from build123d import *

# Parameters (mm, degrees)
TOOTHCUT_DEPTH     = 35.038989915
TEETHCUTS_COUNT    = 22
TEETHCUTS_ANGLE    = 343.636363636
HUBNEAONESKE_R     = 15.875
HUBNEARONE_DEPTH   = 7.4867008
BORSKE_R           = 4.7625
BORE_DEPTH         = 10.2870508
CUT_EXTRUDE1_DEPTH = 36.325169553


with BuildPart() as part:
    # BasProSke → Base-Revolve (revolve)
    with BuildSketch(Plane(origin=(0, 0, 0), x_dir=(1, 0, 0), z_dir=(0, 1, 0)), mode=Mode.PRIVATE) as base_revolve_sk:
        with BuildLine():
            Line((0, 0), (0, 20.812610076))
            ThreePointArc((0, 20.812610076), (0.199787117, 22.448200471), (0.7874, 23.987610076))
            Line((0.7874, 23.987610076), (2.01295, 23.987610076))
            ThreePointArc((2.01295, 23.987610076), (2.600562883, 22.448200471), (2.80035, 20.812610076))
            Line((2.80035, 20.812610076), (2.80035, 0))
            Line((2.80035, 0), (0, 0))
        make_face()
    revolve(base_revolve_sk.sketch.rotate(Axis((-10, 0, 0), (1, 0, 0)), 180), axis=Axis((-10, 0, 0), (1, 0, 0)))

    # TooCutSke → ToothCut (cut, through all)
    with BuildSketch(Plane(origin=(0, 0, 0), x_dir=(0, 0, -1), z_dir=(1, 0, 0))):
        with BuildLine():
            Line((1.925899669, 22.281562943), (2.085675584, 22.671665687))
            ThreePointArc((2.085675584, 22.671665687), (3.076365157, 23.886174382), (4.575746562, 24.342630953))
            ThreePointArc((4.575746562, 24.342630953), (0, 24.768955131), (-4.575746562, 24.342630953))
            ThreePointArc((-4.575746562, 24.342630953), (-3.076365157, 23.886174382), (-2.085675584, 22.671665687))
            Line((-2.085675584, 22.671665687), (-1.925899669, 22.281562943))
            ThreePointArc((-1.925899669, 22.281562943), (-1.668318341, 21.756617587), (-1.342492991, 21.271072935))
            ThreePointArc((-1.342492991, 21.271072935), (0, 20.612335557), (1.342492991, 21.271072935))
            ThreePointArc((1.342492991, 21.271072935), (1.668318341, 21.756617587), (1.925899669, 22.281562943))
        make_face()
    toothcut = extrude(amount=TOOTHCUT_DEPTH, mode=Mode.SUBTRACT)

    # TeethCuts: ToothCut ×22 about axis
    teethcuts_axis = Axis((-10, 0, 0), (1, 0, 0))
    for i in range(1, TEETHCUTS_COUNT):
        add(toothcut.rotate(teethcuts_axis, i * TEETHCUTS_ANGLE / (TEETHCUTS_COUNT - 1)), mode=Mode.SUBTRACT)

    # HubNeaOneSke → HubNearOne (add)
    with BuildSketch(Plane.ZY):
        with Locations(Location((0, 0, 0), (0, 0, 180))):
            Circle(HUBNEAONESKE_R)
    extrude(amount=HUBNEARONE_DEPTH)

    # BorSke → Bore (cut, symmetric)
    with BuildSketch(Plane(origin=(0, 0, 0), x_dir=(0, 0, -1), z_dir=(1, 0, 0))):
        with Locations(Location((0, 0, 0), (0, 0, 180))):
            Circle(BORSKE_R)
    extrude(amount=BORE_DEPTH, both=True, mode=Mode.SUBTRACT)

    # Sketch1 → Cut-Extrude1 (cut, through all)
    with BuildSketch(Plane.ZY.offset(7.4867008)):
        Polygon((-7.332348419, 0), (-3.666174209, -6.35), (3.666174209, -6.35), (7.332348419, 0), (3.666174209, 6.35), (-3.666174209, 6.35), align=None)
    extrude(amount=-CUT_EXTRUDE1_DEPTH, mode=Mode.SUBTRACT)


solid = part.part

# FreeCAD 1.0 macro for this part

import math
import FreeCAD as App
import Part
import Sketcher
Q = App.Units.Quantity


def add_polygon(sketch, points):
    """Adds a closed chain of lines whose ends are joined by coincident constraints."""
    first, n = sketch.GeometryCount, len(points)
    for a, b in zip(points, points[1:] + points[:1]):
        sketch.addGeometry(Part.LineSegment(App.Vector(*a, 0), App.Vector(*b, 0)), False)
    for i in range(n):
        sketch.addConstraint(Sketcher.Constraint("Coincident", first + i, 2, first + (i + 1) % n, 1))

doc = App.newDocument("Part")
body = doc.addObject("PartDesign::Body", "Body")

# Sketch on XZ plane
sketch1 = body.newObject("Sketcher::SketchObject", "Sketch")
sketch1.AttachmentSupport = (doc.getObject("XZ_Plane"), [""])
sketch1.MapMode = "FlatFace"
sketch1.addGeometry([
    Part.LineSegment(App.Vector(0, -20.8, 0), App.Vector(0, 0, 0)),  # 0
    Part.LineSegment(App.Vector(0, 0, 0), App.Vector(2.8, 0, 0)),  # 1
    Part.LineSegment(App.Vector(2.8, 0, 0), App.Vector(2.8, -20.8, 0)),  # 2
    Part.ArcOfCircle(Part.Circle(App.Vector(-4, -20.8, 0), App.Vector(0, 0, 1), 6.8), math.radians(-28), math.radians(0)),  # 3
    Part.LineSegment(App.Vector(2, -24, 0), App.Vector(0.8, -24, 0)),  # 4
    Part.ArcOfCircle(Part.Circle(App.Vector(6.8, -20.8, 0), App.Vector(0, 0, 1), 6.8), math.radians(180), math.radians(208)),  # 5
], False)
sketch1.addConstraint([
    Sketcher.Constraint("Coincident", 0, 2, 1, 1),
    Sketcher.Constraint("Coincident", 1, 2, 2, 1),
    Sketcher.Constraint("Tangent", 2, 2, 3, 2),
    Sketcher.Constraint("Coincident", 3, 1, 4, 1),
    Sketcher.Constraint("Coincident", 4, 2, 5, 2),
    Sketcher.Constraint("Tangent", 5, 1, 0, 1),
    Sketcher.Constraint("Vertical", 0),
    Sketcher.Constraint("Horizontal", 1),
    Sketcher.Constraint("Vertical", 2),
    Sketcher.Constraint("Horizontal", 4),
    Sketcher.Constraint("Coincident", 0, 2, -1, 1),
    Sketcher.Constraint("Equal", 3, 5),
    Sketcher.Constraint("Horizontal", 3, 3, 5, 3),
    Sketcher.Constraint("DistanceX", -1, 1, 4, 2, Q("0.031 in")),
    Sketcher.Constraint("Radius", 3, 6.79491),
    Sketcher.Constraint("DistanceX", 1, 1, 1, 2, 2.80035),
    Sketcher.Constraint("DistanceY", 0, 1, 0, 2, 20.81261),
])
revolution = body.newObject("PartDesign::Revolution", "Revolution")
revolution.Profile = sketch1
revolution.ReferenceAxis = (sketch1, ["H_Axis"])
revolution.Angle = 360

# Sketch on YZ plane
sketch2 = body.newObject("Sketcher::SketchObject", "Sketch001")
sketch2.AttachmentSupport = (doc.getObject("YZ_Plane"), [""])
sketch2.MapMode = "FlatFace"
sketch2.addGeometry([
    Part.LineSegment(App.Vector(22.28, -1.93, 0), App.Vector(22.67, -2.09, 0)),  # 0
    Part.ArcOfCircle(Part.Circle(App.Vector(21.65, -4.58, 0), App.Vector(0, 0, 1), 2.69), math.radians(0), math.radians(68)),  # 1
    Part.ArcOfCircle(Part.Circle(App.Vector(0, 0, 0), App.Vector(0, 0, 1), 24.77), math.radians(-11), math.radians(11)),  # 2
    Part.ArcOfCircle(Part.Circle(App.Vector(21.65, 4.58, 0), App.Vector(0, 0, 1), 2.69), math.radians(-68), math.radians(0)),  # 3
    Part.LineSegment(App.Vector(22.67, 2.09, 0), App.Vector(22.28, 1.93, 0)),  # 4
    Part.ArcOfCircle(Part.Circle(App.Vector(23.93, -2.09, 0), App.Vector(0, 0, 1), 4.34), math.radians(112.27), math.radians(127.73)),  # 5
    Part.ArcOfCircle(Part.Circle(App.Vector(22.31, 0, 0), App.Vector(0, 0, 1), 1.7), math.radians(128), math.radians(232)),  # 6
    Part.ArcOfCircle(Part.Circle(App.Vector(23.93, 2.09, 0), App.Vector(0, 0, 1), 4.34), math.radians(-127.73), math.radians(-112.27)),  # 7
], False)
sketch2.addConstraint([
    Sketcher.Constraint("Tangent", 0, 2, 1, 2),
    Sketcher.Constraint("Coincident", 1, 1, 2, 1),
    Sketcher.Constraint("Coincident", 2, 2, 3, 2),
    Sketcher.Constraint("Tangent", 3, 1, 4, 1),
    Sketcher.Constraint("Tangent", 4, 2, 5, 1),
    Sketcher.Constraint("Tangent", 5, 2, 6, 1),
    Sketcher.Constraint("Tangent", 6, 2, 7, 1),
    Sketcher.Constraint("Tangent", 7, 2, 0, 1),
    Sketcher.Constraint("Coincident", 2, 3, -1, 1),
    Sketcher.Constraint("Equal", 1, 3),
    Sketcher.Constraint("Equal", 5, 7),
    Sketcher.Constraint("Symmetric", 1, 3, 3, 3, -1),
    Sketcher.Constraint("Symmetric", 5, 3, 7, 3, -1),
    Sketcher.Constraint("Horizontal", 3, 3, 2, 2),
    Sketcher.Constraint("Radius", 1, 2.690833),
    Sketcher.Constraint("Radius", 2, 24.768955),
    Sketcher.Constraint("Radius", 5, 4.338955),
    Sketcher.Constraint("Radius", 6, 1.697355),
    Sketcher.Constraint("DistanceY", -1, 1, 4, 2, 1.9259),
    Sketcher.Constraint("DistanceX", -1, 1, 6, 3, 22.309691),
    Sketcher.Constraint("DistanceX", -1, 1, 1, 1, 24.342631),
])
pocket1 = body.newObject("PartDesign::Pocket", "Pocket")
pocket1.Profile = sketch2
pocket1.Type = "ThroughAll"
pocket1.Reversed = True
doc.recompute()

polarpattern = body.newObject("PartDesign::PolarPattern", "PolarPattern")
polarpattern.Originals = [pocket1]
polarpattern.Axis = (doc.getObject("X_Axis"), [""])
polarpattern.Angle = 360
polarpattern.Occurrences = 22
body.Tip = polarpattern

# Sketch on YZ plane
sketch3 = body.newObject("Sketcher::SketchObject", "Sketch002")
sketch3.AttachmentSupport = (doc.getObject("YZ_Plane"), [""])
sketch3.MapMode = "FlatFace"
sketch3.addGeometry(Part.Circle(App.Vector(0, 0, 0), App.Vector(0, 0, 1), 16), False)
sketch3.addConstraint([
    Sketcher.Constraint("Coincident", 0, 3, -1, 1),
    Sketcher.Constraint("Diameter", 0, Q("1.25 in")),
])
pad1 = body.newObject("PartDesign::Pad", "Pad")
pad1.Profile = sketch3
pad1.Length = 7.486701
pad1.Reversed = True

# Sketch on YZ plane
sketch4 = body.newObject("Sketcher::SketchObject", "Sketch003")
sketch4.AttachmentSupport = (doc.getObject("YZ_Plane"), [""])
sketch4.MapMode = "FlatFace"
sketch4.addGeometry(Part.Circle(App.Vector(0, 0, 0), App.Vector(0, 0, 1), 4.8), False)
sketch4.addConstraint([
    Sketcher.Constraint("Coincident", 0, 3, -1, 1),
    Sketcher.Constraint("Diameter", 0, Q("0.375 in")),
])
pocket2 = body.newObject("PartDesign::Pocket", "Pocket001")
pocket2.Profile = sketch4
pocket2.Length = 20.574102
pocket2.Midplane = True

# Sketch on YZ plane
sketch5 = body.newObject("Sketcher::SketchObject", "Sketch004")
sketch5.AttachmentSupport = (doc.getObject("YZ_Plane"), [""])
sketch5.MapMode = "FlatFace"
sketch5.AttachmentOffset = App.Placement(App.Vector(0, 0, -7.486701), App.Rotation())
add_polygon(sketch5, [(0, -7), (-6, -4), (-6, 4), (0, 7), (6, 4), (6, -4)])  # lines 0-5
sketch5.addConstraint([
    Sketcher.Constraint("Vertical", 1),
    Sketcher.Constraint("Vertical", 4),
    Sketcher.Constraint("Symmetric", 0, 2, 3, 2, -1, 1),
    Sketcher.Constraint("Symmetric", 2, 2, 5, 2, -1, 1),
    Sketcher.Constraint("PointOnObject", 2, 2, -2),
    Sketcher.Constraint("Parallel", 2, 5),
    Sketcher.Constraint("Horizontal", 1, 2, 3, 2),
    Sketcher.Constraint("Angle", 0, Q("150 deg")),
    Sketcher.Constraint("DistanceX", 1, 2, 3, 2, Q("0.5 in")),
    Sketcher.Constraint("DistanceY", 1, 1, 1, 2, 7.332348),
])
pocket3 = body.newObject("PartDesign::Pocket", "Pocket002")
pocket3.Profile = sketch5
pocket3.Type = "ThroughAll"
pocket3.Reversed = True

doc.recompute()
